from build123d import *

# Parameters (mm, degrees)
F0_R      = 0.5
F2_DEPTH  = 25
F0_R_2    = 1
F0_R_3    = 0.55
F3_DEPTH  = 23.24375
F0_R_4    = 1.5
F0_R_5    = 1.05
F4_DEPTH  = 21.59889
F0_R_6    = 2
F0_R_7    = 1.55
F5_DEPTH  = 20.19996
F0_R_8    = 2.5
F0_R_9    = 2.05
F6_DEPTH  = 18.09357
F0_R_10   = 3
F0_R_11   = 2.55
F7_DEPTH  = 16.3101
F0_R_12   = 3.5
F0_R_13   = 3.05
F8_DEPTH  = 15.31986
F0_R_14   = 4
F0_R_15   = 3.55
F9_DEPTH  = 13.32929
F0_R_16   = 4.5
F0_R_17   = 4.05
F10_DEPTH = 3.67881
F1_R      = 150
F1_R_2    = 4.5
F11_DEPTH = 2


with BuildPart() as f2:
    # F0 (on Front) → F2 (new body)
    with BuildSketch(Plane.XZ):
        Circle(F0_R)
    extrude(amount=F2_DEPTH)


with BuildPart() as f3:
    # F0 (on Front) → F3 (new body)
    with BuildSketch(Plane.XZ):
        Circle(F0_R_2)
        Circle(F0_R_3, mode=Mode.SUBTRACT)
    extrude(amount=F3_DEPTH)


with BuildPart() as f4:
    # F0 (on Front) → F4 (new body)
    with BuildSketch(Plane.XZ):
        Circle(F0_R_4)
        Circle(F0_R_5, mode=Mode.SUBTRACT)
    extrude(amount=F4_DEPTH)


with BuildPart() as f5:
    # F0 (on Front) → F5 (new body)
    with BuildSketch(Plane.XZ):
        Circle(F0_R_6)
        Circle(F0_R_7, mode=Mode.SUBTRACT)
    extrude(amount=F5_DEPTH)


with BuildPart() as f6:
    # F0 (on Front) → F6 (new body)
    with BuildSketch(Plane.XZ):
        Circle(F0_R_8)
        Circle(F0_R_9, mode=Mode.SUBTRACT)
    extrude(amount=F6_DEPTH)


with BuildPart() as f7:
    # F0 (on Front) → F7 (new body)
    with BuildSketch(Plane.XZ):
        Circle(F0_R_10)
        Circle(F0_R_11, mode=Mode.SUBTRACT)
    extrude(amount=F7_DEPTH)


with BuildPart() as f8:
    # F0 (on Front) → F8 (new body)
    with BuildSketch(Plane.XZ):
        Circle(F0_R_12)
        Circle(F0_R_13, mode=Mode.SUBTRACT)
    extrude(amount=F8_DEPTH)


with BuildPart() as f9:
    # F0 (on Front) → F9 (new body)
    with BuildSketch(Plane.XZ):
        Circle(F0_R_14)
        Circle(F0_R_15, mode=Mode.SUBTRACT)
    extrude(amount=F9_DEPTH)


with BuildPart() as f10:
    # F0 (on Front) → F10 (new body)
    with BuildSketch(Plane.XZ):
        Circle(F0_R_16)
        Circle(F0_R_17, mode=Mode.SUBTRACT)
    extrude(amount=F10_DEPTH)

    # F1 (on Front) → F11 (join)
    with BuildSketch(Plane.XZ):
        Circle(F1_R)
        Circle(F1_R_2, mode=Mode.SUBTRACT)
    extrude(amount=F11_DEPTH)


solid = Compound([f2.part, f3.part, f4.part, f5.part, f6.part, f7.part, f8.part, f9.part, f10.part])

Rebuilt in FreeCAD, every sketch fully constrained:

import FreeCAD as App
import Part
import Sketcher

doc = App.newDocument("Part")
body = doc.addObject("PartDesign::Body", "Body")

# Sketch on XZ plane
sketch1 = body.newObject("Sketcher::SketchObject", "Sketch")
sketch1.AttachmentSupport = (doc.getObject("XZ_Plane"), [""])
sketch1.MapMode = "FlatFace"
sketch1.addGeometry(Part.Circle(App.Vector(0, 0, 0), App.Vector(0, 0, 1), 0.5), False)
sketch1.addConstraint([
    Sketcher.Constraint("Coincident", 0, 3, -1, 1),
    Sketcher.Constraint("Diameter", 0, 1.0),
])
pad1 = body.newObject("PartDesign::Pad", "Pad")
pad1.Profile = sketch1
pad1.Length = 25
body2 = doc.addObject("PartDesign::Body", "Body001")

# Sketch on XZ plane
sketch2 = body2.newObject("Sketcher::SketchObject", "Sketch001")
sketch2.AttachmentSupport = (doc.getObject("XZ_Plane001"), [""])
sketch2.MapMode = "FlatFace"
sketch2.addGeometry([
    Part.Circle(App.Vector(0, 0, 0), App.Vector(0, 0, 1), 1),
    Part.Circle(App.Vector(0, 0, 0), App.Vector(0, 0, 1), 0.6),
], False)
sketch2.addConstraint([
    Sketcher.Constraint("Coincident", 0, 3, -1, 1),
    Sketcher.Constraint("Coincident", 1, 3, -1, 1),
    Sketcher.Constraint("Diameter", 0, 2.0),
    Sketcher.Constraint("Diameter", 1, 1.1),
])
pad2 = body2.newObject("PartDesign::Pad", "Pad001")
pad2.Profile = sketch2
pad2.Length = 23.24375
body3 = doc.addObject("PartDesign::Body", "Body002")

# Sketch on XZ plane
sketch3 = body3.newObject("Sketcher::SketchObject", "Sketch002")
sketch3.AttachmentSupport = (doc.getObject("XZ_Plane002"), [""])
sketch3.MapMode = "FlatFace"
sketch3.addGeometry([
    Part.Circle(App.Vector(0, 0, 0), App.Vector(0, 0, 1), 1.5),
    Part.Circle(App.Vector(0, 0, 0), App.Vector(0, 0, 1), 1.1),
], False)
sketch3.addConstraint([
    Sketcher.Constraint("Coincident", 0, 3, -1, 1),
    Sketcher.Constraint("Coincident", 1, 3, -1, 1),
    Sketcher.Constraint("Diameter", 0, 3.0),
    Sketcher.Constraint("Diameter", 1, 2.1),
])
pad3 = body3.newObject("PartDesign::Pad", "Pad002")
pad3.Profile = sketch3
pad3.Length = 21.59889
body4 = doc.addObject("PartDesign::Body", "Body003")

# Sketch on XZ plane
sketch4 = body4.newObject("Sketcher::SketchObject", "Sketch003")
sketch4.AttachmentSupport = (doc.getObject("XZ_Plane003"), [""])
sketch4.MapMode = "FlatFace"
sketch4.addGeometry([
    Part.Circle(App.Vector(0, 0, 0), App.Vector(0, 0, 1), 2),
    Part.Circle(App.Vector(0, 0, 0), App.Vector(0, 0, 1), 1.6),
], False)
sketch4.addConstraint([
    Sketcher.Constraint("Coincident", 0, 3, -1, 1),
    Sketcher.Constraint("Coincident", 1, 3, -1, 1),
    Sketcher.Constraint("Diameter", 0, 4.0),
    Sketcher.Constraint("Diameter", 1, 3.1),
])
pad4 = body4.newObject("PartDesign::Pad", "Pad003")
pad4.Profile = sketch4
pad4.Length = 20.19996
body5 = doc.addObject("PartDesign::Body", "Body004")

# Sketch on XZ plane
sketch5 = body5.newObject("Sketcher::SketchObject", "Sketch004")
sketch5.AttachmentSupport = (doc.getObject("XZ_Plane004"), [""])
sketch5.MapMode = "FlatFace"
sketch5.addGeometry([
    Part.Circle(App.Vector(0, 0, 0), App.Vector(0, 0, 1), 2.5),
    Part.Circle(App.Vector(0, 0, 0), App.Vector(0, 0, 1), 2),
], False)
sketch5.addConstraint([
    Sketcher.Constraint("Coincident", 0, 3, -1, 1),
    Sketcher.Constraint("Coincident", 1, 3, -1, 1),
    Sketcher.Constraint("Diameter", 0, 5.0),
    Sketcher.Constraint("Diameter", 1, 4.1),
])
pad5 = body5.newObject("PartDesign::Pad", "Pad004")
pad5.Profile = sketch5
pad5.Length = 18.09357
body6 = doc.addObject("PartDesign::Body", "Body005")

# Sketch on XZ plane
sketch6 = body6.newObject("Sketcher::SketchObject", "Sketch005")
sketch6.AttachmentSupport = (doc.getObject("XZ_Plane005"), [""])
sketch6.MapMode = "FlatFace"
sketch6.addGeometry([
    Part.Circle(App.Vector(0, 0, 0), App.Vector(0, 0, 1), 3),
    Part.Circle(App.Vector(0, 0, 0), App.Vector(0, 0, 1), 2.5),
], False)
sketch6.addConstraint([
    Sketcher.Constraint("Coincident", 0, 3, -1, 1),
    Sketcher.Constraint("Coincident", 1, 3, -1, 1),
    Sketcher.Constraint("Diameter", 0, 6.0),
    Sketcher.Constraint("Diameter", 1, 5.1),
])
pad6 = body6.newObject("PartDesign::Pad", "Pad005")
pad6.Profile = sketch6
pad6.Length = 16.3101
body7 = doc.addObject("PartDesign::Body", "Body006")

# Sketch on XZ plane
sketch7 = body7.newObject("Sketcher::SketchObject", "Sketch006")
sketch7.AttachmentSupport = (doc.getObject("XZ_Plane006"), [""])
sketch7.MapMode = "FlatFace"
sketch7.addGeometry([
    Part.Circle(App.Vector(0, 0, 0), App.Vector(0, 0, 1), 3.5),
    Part.Circle(App.Vector(0, 0, 0), App.Vector(0, 0, 1), 3),
], False)
sketch7.addConstraint([
    Sketcher.Constraint("Coincident", 0, 3, -1, 1),
    Sketcher.Constraint("Coincident", 1, 3, -1, 1),
    Sketcher.Constraint("Diameter", 0, 7.0),
    Sketcher.Constraint("Diameter", 1, 6.1),
])
pad7 = body7.newObject("PartDesign::Pad", "Pad006")
pad7.Profile = sketch7
pad7.Length = 15.31986
body8 = doc.addObject("PartDesign::Body", "Body007")

# Sketch on XZ plane
sketch8 = body8.newObject("Sketcher::SketchObject", "Sketch007")
sketch8.AttachmentSupport = (doc.getObject("XZ_Plane007"), [""])
sketch8.MapMode = "FlatFace"
sketch8.addGeometry([
    Part.Circle(App.Vector(0, 0, 0), App.Vector(0, 0, 1), 4),
    Part.Circle(App.Vector(0, 0, 0), App.Vector(0, 0, 1), 3.5),
], False)
sketch8.addConstraint([
    Sketcher.Constraint("Coincident", 0, 3, -1, 1),
    Sketcher.Constraint("Coincident", 1, 3, -1, 1),
    Sketcher.Constraint("Diameter", 0, 8.0),
    Sketcher.Constraint("Diameter", 1, 7.1),
])
pad8 = body8.newObject("PartDesign::Pad", "Pad007")
pad8.Profile = sketch8
pad8.Length = 13.32929
body9 = doc.addObject("PartDesign::Body", "Body008")

# Sketch on XZ plane
sketch9 = body9.newObject("Sketcher::SketchObject", "Sketch008")
sketch9.AttachmentSupport = (doc.getObject("XZ_Plane008"), [""])
sketch9.MapMode = "FlatFace"
sketch9.addGeometry([
    Part.Circle(App.Vector(0, 0, 0), App.Vector(0, 0, 1), 4.5),
    Part.Circle(App.Vector(0, 0, 0), App.Vector(0, 0, 1), 4),
], False)
sketch9.addConstraint([
    Sketcher.Constraint("Coincident", 0, 3, -1, 1),
    Sketcher.Constraint("Coincident", 1, 3, -1, 1),
    Sketcher.Constraint("Diameter", 0, 9.0),
    Sketcher.Constraint("Diameter", 1, 8.1),
])
pad9 = body9.newObject("PartDesign::Pad", "Pad008")
pad9.Profile = sketch9
pad9.Length = 3.67881

# Sketch on XZ plane
sketch10 = body9.newObject("Sketcher::SketchObject", "Sketch009")
sketch10.AttachmentSupport = (doc.getObject("XZ_Plane008"), [""])
sketch10.MapMode = "FlatFace"
sketch10.addGeometry([
    Part.Circle(App.Vector(0, 0, 0), App.Vector(0, 0, 1), 150),
    Part.Circle(App.Vector(0, 0, 0), App.Vector(0, 0, 1), 4.5),
], False)
sketch10.addConstraint([
    Sketcher.Constraint("Coincident", 0, 3, -1, 1),
    Sketcher.Constraint("Coincident", 1, 3, -1, 1),
    Sketcher.Constraint("Diameter", 0, 300.0),
    Sketcher.Constraint("Diameter", 1, 9.0),
])
pad10 = body9.newObject("PartDesign::Pad", "Pad009")
pad10.Profile = sketch10
pad10.Length = 2

doc.recompute()
